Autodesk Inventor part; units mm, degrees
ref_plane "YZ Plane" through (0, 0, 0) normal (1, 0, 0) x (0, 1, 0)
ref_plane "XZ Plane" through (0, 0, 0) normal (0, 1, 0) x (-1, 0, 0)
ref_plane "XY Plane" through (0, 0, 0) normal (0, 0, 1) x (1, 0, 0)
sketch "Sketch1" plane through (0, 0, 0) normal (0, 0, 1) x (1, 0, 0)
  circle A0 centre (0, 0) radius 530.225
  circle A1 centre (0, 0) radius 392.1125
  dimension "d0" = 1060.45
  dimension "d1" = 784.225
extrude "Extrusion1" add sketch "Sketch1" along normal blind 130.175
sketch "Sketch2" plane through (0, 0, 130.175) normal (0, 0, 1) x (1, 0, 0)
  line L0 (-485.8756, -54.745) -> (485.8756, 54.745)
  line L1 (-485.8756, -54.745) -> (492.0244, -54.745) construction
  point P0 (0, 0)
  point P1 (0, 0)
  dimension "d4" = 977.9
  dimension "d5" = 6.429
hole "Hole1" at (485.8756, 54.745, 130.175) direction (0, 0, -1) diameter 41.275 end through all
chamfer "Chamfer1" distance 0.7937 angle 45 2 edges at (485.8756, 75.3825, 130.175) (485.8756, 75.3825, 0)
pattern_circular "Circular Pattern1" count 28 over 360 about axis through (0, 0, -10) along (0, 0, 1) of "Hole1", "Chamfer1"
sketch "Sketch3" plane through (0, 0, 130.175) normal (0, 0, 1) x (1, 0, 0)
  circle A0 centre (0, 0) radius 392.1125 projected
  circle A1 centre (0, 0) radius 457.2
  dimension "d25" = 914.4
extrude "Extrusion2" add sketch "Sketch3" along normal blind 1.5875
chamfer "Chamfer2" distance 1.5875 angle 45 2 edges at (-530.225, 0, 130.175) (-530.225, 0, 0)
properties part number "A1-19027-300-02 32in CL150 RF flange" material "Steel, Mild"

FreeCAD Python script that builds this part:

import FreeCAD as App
import Part
import Sketcher
Q = App.Units.Quantity


def edges_at(feature, points):
    """Names of the edges that pass closest to the given points."""
    edges = feature.Shape.Edges
    near = lambda p: min(range(len(edges)), key=lambda i: edges[i].distToShape(Part.Vertex(*p))[0])
    return sorted({f"Edge{near(p) + 1}" for p in points})

doc = App.newDocument("Part")
body = doc.addObject("PartDesign::Body", "Body")

# Sketch on XY plane
sketch1 = body.newObject("Sketcher::SketchObject", "Sketch")
sketch1.AttachmentSupport = (doc.getObject("XY_Plane"), [""])
sketch1.MapMode = "FlatFace"
sketch1.addGeometry([
    Part.Circle(App.Vector(0, 0, 0), App.Vector(0, 0, 1), 530.225),
    Part.Circle(App.Vector(0, 0, 0), App.Vector(0, 0, 1), 392.1125),
], False)
sketch1.addConstraint([
    Sketcher.Constraint("Coincident", 0, 3, -1, 1),
    Sketcher.Constraint("Coincident", 1, 3, -1, 1),
    Sketcher.Constraint("Diameter", 0, Q("41.75 in")),
    Sketcher.Constraint("Diameter", 1, Q("30.875 in")),
])
pad1 = body.newObject("PartDesign::Pad", "Pad")
pad1.Profile = sketch1
pad1.Length = Q("5.125 in")

# Sketch on XY plane
sketch2 = body.newObject("Sketcher::SketchObject", "Sketch001")
sketch2.AttachmentSupport = (doc.getObject("XY_Plane"), [""])
sketch2.MapMode = "FlatFace"
sketch2.AttachmentOffset = App.Placement(App.Vector(0, 0, 5.125 * 25.4), App.Rotation())
sketch2.addGeometry(Part.Circle(App.Vector(485.8756, 54.745, 0), App.Vector(0, 0, 1), 20.6375), False)
sketch2.addConstraint([
    Sketcher.Constraint("Diameter", 0, Q("1.625 in")),
    Sketcher.Constraint("DistanceX", -1, 1, 0, 3, Q("485.8756 mm")),
    Sketcher.Constraint("DistanceY", -1, 1, 0, 3, Q("54.745 mm")),
])
doc.recompute()
hole = body.newObject("PartDesign::Hole", "Hole")
hole.Profile = sketch2
hole.ThreadType = "None"
hole.Diameter = Q("1.625 in")
hole.DepthType = "ThroughAll"
doc.recompute()

chamfer = body.newObject("PartDesign::Chamfer", "Chamfer")
chamfer.Base = (hole, edges_at(hole, [(485.876, 75.382, 130.175), (485.876, 75.382, 0)]))
chamfer.Size = Q("0.031248 in")
doc.recompute()

polarpattern = body.newObject("PartDesign::PolarPattern", "PolarPattern")
polarpattern.Originals = [hole, chamfer]
polarpattern.Axis = (doc.getObject("Z_Axis"), [""])
polarpattern.Angle = 360
polarpattern.Occurrences = 28
body.Tip = polarpattern

# Sketch on XY plane
sketch3 = body.newObject("Sketcher::SketchObject", "Sketch002")
sketch3.AttachmentSupport = (doc.getObject("XY_Plane"), [""])
sketch3.MapMode = "FlatFace"
sketch3.AttachmentOffset = App.Placement(App.Vector(0, 0, 5.125 * 25.4), App.Rotation())
sketch3.addGeometry([
    Part.Circle(App.Vector(0, 0, 0), App.Vector(0, 0, 1), 457.2),
    Part.Circle(App.Vector(0, 0, 0), App.Vector(0, 0, 1), 392.1125),
], False)
sketch3.addConstraint([
    Sketcher.Constraint("Coincident", 0, 3, -1, 1),
    Sketcher.Constraint("Coincident", 1, 3, -1, 1),
    Sketcher.Constraint("Diameter", 0, Q("36 in")),
    Sketcher.Constraint("Diameter", 1, Q("30.875 in")),
])
pad2 = body.newObject("PartDesign::Pad", "Pad001")
pad2.Profile = sketch3
pad2.Length = Q("0.0625 in")
doc.recompute()

chamfer2 = body.newObject("PartDesign::Chamfer", "Chamfer001")
chamfer2.Base = (pad2, edges_at(pad2, [(-530.225, 0, 130.175), (-530.225, 0, 0)]))
chamfer2.Size = Q("0.0625 in")

doc.recompute()
